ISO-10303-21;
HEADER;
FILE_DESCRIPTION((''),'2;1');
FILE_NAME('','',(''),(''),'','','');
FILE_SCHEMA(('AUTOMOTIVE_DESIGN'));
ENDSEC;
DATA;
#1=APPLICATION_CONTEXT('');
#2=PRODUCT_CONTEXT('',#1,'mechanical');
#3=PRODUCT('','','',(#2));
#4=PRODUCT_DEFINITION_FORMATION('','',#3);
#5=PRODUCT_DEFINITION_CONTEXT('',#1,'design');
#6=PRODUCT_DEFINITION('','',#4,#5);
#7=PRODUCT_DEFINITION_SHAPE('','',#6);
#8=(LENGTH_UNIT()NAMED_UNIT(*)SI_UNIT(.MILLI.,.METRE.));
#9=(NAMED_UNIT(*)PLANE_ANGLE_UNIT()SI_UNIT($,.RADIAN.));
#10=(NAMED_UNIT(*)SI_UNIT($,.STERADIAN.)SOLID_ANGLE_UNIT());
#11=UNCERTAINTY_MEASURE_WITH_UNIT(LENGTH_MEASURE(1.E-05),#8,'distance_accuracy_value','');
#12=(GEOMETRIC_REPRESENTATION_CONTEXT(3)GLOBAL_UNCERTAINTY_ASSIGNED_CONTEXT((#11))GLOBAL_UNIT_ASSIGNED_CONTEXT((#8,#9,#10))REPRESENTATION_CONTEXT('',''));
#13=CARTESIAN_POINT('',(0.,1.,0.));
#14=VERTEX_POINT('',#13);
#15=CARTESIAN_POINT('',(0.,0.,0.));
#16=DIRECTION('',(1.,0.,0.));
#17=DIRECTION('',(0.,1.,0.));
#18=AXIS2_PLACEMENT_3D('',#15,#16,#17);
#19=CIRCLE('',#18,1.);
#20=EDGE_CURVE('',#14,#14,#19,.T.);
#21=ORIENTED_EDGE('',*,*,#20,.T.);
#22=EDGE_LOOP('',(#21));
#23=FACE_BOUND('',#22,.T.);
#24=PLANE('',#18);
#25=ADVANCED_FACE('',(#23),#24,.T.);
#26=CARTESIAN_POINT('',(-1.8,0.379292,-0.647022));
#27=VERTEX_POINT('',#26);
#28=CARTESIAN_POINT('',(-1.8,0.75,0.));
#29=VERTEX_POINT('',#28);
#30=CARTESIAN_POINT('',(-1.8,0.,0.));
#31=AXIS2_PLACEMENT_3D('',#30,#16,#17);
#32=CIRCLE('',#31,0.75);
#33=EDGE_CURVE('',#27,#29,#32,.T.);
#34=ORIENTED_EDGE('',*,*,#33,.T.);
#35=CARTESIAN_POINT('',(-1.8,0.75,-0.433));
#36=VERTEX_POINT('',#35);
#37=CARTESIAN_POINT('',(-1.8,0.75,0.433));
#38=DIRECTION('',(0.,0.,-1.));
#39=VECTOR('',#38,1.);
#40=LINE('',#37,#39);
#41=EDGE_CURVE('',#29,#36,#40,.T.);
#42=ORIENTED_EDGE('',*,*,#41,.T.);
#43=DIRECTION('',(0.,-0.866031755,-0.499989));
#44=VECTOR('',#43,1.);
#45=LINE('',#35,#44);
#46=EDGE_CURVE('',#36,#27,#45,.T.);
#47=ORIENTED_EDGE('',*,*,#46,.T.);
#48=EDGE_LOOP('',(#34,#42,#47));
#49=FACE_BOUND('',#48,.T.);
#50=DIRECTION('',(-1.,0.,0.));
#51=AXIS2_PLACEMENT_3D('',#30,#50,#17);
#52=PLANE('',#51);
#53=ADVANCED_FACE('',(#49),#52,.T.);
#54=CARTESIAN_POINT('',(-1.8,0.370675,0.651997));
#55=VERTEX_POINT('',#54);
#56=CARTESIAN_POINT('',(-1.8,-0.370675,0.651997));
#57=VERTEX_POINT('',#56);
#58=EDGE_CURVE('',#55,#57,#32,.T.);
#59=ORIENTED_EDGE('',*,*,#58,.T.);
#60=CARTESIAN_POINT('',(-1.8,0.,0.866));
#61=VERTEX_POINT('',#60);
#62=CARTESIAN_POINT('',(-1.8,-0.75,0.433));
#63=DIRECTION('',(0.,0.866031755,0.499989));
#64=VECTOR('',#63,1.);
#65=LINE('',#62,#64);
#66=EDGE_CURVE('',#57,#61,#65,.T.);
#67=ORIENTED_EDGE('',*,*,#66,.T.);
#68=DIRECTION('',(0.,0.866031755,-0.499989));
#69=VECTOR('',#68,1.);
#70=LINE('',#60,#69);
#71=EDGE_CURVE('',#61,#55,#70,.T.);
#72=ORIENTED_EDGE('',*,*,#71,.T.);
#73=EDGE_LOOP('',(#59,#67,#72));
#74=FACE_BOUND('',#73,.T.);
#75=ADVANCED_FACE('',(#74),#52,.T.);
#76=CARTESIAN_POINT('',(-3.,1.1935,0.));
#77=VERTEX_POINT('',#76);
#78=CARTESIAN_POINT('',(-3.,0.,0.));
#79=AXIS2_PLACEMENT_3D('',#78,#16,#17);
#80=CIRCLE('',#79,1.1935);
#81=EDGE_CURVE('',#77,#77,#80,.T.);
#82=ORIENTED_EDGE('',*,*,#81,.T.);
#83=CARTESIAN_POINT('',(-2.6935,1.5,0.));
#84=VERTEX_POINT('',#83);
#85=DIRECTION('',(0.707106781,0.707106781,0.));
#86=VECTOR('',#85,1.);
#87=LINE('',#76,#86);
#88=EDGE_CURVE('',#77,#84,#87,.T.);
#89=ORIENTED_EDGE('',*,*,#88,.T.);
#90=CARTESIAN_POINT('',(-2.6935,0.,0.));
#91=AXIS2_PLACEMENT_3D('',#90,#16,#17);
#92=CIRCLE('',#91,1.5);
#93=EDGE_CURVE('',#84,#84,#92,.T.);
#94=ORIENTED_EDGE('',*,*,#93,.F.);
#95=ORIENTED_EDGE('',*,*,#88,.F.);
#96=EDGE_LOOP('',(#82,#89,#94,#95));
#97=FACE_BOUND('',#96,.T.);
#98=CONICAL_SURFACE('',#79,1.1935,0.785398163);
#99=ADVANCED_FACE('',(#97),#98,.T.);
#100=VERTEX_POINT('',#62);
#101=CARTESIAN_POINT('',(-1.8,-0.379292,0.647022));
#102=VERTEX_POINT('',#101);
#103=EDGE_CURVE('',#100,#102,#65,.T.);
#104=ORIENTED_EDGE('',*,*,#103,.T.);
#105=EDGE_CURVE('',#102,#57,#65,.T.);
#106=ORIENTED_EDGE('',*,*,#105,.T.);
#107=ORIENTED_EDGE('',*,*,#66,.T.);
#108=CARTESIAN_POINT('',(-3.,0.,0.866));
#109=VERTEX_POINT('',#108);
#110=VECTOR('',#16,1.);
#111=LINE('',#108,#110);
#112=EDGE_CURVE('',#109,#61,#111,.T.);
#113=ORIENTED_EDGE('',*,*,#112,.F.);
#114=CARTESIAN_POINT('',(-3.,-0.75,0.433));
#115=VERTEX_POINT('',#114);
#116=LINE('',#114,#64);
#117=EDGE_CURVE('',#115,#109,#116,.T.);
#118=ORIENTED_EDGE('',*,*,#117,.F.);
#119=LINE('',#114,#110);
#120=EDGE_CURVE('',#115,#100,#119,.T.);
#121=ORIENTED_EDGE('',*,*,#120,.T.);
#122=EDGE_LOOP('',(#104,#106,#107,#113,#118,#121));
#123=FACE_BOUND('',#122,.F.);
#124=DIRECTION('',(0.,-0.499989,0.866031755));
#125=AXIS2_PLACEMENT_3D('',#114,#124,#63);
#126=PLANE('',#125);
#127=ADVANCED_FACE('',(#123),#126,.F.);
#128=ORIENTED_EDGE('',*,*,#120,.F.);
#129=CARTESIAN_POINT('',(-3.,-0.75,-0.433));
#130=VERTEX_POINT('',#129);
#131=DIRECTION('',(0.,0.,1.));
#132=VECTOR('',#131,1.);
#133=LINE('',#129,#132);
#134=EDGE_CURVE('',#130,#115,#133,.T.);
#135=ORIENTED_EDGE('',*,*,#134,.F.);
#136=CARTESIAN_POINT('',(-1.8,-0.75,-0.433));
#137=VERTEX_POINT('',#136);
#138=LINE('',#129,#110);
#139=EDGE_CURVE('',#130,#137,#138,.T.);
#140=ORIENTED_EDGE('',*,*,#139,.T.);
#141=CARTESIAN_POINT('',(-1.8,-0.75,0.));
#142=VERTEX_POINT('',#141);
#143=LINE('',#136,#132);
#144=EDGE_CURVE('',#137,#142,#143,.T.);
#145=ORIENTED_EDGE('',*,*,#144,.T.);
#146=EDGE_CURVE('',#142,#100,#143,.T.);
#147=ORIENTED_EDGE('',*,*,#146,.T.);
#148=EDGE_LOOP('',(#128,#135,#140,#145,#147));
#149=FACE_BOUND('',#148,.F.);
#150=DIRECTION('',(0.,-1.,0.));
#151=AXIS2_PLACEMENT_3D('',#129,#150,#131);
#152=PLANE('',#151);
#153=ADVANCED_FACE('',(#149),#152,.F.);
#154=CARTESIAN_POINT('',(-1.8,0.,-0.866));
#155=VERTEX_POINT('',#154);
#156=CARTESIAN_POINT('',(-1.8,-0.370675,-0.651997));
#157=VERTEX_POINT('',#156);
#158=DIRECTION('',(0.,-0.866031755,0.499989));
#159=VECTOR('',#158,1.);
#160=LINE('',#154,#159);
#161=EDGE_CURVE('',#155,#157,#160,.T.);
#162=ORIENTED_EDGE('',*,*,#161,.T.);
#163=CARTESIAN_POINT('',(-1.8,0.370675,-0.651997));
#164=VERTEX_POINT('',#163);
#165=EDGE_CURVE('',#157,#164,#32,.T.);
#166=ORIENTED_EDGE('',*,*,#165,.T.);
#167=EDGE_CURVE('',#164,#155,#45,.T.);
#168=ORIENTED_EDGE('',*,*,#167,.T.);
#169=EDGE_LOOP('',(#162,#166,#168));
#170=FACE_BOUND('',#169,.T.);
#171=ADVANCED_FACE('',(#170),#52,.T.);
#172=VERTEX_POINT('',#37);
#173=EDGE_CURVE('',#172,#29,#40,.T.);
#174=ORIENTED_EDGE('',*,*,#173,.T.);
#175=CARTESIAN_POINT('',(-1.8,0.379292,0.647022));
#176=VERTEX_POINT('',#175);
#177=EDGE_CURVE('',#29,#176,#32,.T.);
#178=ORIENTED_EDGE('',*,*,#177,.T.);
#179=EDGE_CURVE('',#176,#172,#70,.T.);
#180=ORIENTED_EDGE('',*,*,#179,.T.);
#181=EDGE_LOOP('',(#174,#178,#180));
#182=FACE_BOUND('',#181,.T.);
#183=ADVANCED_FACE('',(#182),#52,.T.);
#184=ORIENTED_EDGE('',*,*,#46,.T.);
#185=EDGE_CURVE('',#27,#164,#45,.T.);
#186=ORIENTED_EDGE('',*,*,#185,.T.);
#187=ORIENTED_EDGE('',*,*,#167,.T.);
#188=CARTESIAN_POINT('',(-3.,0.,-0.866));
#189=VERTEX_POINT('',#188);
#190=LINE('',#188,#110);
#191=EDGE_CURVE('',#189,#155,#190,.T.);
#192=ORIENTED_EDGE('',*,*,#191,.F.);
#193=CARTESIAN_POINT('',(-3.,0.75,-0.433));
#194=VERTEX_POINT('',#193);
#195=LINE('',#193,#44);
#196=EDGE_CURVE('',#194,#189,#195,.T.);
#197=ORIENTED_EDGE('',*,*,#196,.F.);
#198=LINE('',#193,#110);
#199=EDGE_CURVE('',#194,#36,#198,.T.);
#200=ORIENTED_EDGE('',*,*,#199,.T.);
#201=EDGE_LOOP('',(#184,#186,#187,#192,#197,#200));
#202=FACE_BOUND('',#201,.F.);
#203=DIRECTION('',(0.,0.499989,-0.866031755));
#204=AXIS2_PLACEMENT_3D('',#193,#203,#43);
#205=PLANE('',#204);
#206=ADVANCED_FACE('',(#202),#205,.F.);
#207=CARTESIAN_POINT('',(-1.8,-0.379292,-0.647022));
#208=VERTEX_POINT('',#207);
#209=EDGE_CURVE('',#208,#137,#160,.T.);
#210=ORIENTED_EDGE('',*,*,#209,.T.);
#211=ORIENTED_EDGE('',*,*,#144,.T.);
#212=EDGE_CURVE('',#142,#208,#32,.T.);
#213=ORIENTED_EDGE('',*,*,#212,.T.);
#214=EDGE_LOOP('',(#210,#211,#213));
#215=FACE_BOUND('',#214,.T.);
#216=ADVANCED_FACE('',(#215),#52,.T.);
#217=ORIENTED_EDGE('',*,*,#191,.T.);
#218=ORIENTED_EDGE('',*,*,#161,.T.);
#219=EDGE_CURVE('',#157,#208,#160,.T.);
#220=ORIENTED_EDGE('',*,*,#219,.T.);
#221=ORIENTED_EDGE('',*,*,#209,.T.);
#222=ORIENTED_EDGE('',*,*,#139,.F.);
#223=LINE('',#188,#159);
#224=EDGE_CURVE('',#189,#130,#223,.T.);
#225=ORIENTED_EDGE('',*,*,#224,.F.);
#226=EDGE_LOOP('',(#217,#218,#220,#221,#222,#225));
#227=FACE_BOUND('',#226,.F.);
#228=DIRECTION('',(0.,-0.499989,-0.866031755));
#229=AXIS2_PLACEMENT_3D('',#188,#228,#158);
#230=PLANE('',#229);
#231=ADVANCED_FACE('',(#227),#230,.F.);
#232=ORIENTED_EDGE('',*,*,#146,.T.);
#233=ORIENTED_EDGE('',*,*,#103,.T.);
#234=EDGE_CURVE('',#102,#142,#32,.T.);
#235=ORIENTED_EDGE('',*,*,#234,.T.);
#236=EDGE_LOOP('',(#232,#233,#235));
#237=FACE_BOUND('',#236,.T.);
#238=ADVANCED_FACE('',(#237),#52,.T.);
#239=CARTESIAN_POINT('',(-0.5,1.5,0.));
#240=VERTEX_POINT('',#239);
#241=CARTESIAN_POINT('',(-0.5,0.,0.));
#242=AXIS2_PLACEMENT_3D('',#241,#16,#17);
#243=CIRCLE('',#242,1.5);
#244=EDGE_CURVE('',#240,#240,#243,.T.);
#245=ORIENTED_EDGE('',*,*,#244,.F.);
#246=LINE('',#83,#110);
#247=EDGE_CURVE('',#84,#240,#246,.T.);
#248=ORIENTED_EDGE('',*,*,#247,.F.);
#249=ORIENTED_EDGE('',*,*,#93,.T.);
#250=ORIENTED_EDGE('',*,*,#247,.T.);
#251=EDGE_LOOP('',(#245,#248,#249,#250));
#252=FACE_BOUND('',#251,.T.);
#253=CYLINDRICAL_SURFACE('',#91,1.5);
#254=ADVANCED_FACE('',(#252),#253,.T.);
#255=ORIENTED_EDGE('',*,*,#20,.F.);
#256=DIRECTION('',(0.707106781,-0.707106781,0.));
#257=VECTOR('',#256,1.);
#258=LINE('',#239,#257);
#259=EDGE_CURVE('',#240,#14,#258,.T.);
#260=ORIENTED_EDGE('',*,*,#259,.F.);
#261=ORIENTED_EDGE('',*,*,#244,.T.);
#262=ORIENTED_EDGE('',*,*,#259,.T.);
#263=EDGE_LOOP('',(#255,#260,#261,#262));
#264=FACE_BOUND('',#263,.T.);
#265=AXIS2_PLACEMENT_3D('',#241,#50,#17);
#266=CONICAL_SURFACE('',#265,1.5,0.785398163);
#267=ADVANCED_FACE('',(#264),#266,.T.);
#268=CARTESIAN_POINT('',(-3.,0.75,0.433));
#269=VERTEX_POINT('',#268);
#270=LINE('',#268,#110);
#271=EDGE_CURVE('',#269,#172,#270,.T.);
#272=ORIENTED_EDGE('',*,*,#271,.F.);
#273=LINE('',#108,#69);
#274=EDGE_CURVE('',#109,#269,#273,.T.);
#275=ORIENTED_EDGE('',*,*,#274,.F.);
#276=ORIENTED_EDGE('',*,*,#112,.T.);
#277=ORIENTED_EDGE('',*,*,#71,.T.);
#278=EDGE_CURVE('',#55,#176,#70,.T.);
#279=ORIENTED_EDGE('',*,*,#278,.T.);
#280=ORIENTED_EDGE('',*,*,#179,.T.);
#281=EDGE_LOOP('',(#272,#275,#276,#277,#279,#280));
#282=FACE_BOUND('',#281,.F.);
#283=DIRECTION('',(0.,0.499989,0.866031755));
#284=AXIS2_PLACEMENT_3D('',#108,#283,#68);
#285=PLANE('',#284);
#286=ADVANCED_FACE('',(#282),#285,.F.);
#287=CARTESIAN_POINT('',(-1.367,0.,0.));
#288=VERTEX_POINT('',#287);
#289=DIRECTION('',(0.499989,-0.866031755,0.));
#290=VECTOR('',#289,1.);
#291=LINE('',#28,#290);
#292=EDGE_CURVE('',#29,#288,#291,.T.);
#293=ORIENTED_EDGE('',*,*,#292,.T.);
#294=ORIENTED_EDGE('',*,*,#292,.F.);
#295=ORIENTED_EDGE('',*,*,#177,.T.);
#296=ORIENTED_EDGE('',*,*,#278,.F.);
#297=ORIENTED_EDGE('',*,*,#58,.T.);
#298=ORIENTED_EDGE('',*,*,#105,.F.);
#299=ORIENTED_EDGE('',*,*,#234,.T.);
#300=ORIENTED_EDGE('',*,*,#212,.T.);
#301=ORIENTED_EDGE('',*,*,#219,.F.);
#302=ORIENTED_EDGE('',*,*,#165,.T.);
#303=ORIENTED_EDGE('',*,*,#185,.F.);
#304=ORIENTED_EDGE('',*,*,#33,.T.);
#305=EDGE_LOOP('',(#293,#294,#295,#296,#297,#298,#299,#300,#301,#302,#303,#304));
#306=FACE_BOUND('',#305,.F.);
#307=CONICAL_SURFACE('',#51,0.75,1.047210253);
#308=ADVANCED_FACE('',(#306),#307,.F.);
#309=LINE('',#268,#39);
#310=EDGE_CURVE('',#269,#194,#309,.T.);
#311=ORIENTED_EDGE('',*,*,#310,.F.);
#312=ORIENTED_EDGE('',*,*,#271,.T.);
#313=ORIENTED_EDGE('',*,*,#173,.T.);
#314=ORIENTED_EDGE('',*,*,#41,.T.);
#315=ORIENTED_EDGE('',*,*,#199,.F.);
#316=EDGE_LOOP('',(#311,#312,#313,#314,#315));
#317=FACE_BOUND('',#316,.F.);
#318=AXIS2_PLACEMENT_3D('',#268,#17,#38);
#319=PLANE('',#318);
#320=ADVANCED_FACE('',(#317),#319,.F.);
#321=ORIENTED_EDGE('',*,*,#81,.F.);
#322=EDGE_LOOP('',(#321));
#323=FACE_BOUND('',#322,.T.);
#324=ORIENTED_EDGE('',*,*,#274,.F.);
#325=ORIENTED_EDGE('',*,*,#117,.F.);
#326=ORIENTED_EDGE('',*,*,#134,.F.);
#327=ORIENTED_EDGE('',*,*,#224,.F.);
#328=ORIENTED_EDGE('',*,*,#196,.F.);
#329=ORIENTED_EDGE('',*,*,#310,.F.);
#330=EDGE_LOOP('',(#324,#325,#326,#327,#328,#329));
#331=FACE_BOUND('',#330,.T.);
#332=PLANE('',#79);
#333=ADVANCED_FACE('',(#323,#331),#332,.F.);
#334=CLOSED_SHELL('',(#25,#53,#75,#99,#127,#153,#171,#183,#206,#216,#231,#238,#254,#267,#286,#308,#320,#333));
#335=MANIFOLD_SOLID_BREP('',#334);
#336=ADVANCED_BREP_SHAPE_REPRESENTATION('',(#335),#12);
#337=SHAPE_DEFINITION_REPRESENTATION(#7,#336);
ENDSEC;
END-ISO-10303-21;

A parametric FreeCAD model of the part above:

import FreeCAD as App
import Part
import Sketcher

V = App.Vector
Q = App.Units.Quantity

doc = App.newDocument("Part")
params = doc.addObject("Spreadsheet::Sheet", "Params")
for row, (alias, value) in enumerate([
    ("sketch1_width", "3 mm"),
    ("sketch1_height", "1 mm"),
    ("revolution_angle", "360 deg"),
    ("pocket1_length", "1.2 mm"),
    ("sketch3_height", "0.75 mm"),
    ("groove_angle", "360 deg"),
], start=1):
    params.set(f"A{row}", alias)
    params.set(f"B{row}", "=" + value)
    params.setAlias(f"B{row}", alias)

body = doc.addObject("PartDesign::Body", "Body")

# Sketch on XY plane
sketch1 = body.newObject("Sketcher::SketchObject", "Sketch")
sketch1.AttachmentSupport = (doc.getObject("XY_Plane"), [""])
sketch1.MapMode = "FlatFace"
sketch1.addGeometry([
    Part.LineSegment(V(-3, 0, 0), V(0, 0, 0)),  # 0
    Part.LineSegment(V(0, 0, 0), V(0, 1, 0)),  # 1
    Part.LineSegment(V(0, 1, 0), V(-0.5, 1.5, 0)),  # 2
    Part.LineSegment(V(-0.5, 1.5, 0), V(-2.69, 1.5, 0)),  # 3
    Part.LineSegment(V(-2.69, 1.5, 0), V(-3, 1.19, 0)),  # 4
    Part.LineSegment(V(-3, 1.19, 0), V(-3, 0, 0)),  # 5
], False)
sketch1.addConstraint([
    Sketcher.Constraint("Coincident", 0, 2, 1, 1),
    Sketcher.Constraint("Coincident", 1, 2, 2, 1),
    Sketcher.Constraint("Coincident", 2, 2, 3, 1),
    Sketcher.Constraint("Coincident", 3, 2, 4, 1),
    Sketcher.Constraint("Coincident", 4, 2, 5, 1),
    Sketcher.Constraint("Coincident", 5, 2, 0, 1),
    Sketcher.Constraint("Horizontal", 0),
    Sketcher.Constraint("Vertical", 1),
    Sketcher.Constraint("Horizontal", 3),
    Sketcher.Constraint("Vertical", 5),
    Sketcher.Constraint("Coincident", 0, 2, -1, 1),
    Sketcher.Constraint("Perpendicular", 2, 4),
    Sketcher.Constraint("DistanceX", 0, 1, 0, 2, Q("3 mm")),
    Sketcher.Constraint("DistanceY", 1, 1, 1, 2, Q("1 mm")),
    Sketcher.Constraint("Angle", 2, Q("135 deg")),
    Sketcher.Constraint("DistanceX", 2, 2, -1, 1, Q("0.5 mm")),
    Sketcher.Constraint("DistanceX", 3, 2, 3, 1, Q("2.1935 mm")),
])
sketch1.setExpression("Constraints[12]", "Params.sketch1_width")
sketch1.setExpression("Constraints[13]", "Params.sketch1_height")
revolution = body.newObject("PartDesign::Revolution", "Revolution")
revolution.Profile = sketch1
revolution.ReferenceAxis = (sketch1, ["H_Axis"])
revolution.setExpression("Angle", "Params.revolution_angle")

# Sketch on YZ plane
sketch2 = body.newObject("Sketcher::SketchObject", "Sketch001")
sketch2.AttachmentSupport = (doc.getObject("YZ_Plane"), [""])
sketch2.MapMode = "FlatFace"
sketch2.AttachmentOffset = App.Placement(V(0, 0, -3), App.Rotation())
sketch2.addGeometry([
    Part.LineSegment(V(-0.8, -0.4, 0), V(-0.8, 0.4, 0)),  # 0
    Part.LineSegment(V(-0.8, 0.4, 0), V(0, 0.9, 0)),  # 1
    Part.LineSegment(V(0, 0.9, 0), V(0.8, 0.4, 0)),  # 2
    Part.LineSegment(V(0.8, 0.4, 0), V(0.8, -0.4, 0)),  # 3
    Part.LineSegment(V(0.8, -0.4, 0), V(0, -0.9, 0)),  # 4
    Part.LineSegment(V(0, -0.9, 0), V(-0.8, -0.4, 0)),  # 5
], False)
sketch2.addConstraint([
    Sketcher.Constraint("Coincident", 0, 2, 1, 1),
    Sketcher.Constraint("Coincident", 1, 2, 2, 1),
    Sketcher.Constraint("Coincident", 2, 2, 3, 1),
    Sketcher.Constraint("Coincident", 3, 2, 4, 1),
    Sketcher.Constraint("Coincident", 4, 2, 5, 1),
    Sketcher.Constraint("Coincident", 5, 2, 0, 1),
    Sketcher.Constraint("Vertical", 0),
    Sketcher.Constraint("Vertical", 3),
    Sketcher.Constraint("Symmetric", 0, 2, 3, 2, -1, 1),
    Sketcher.Constraint("Symmetric", 1, 2, 4, 2, -1, 1),
    Sketcher.Constraint("PointOnObject", 1, 2, -2),
    Sketcher.Constraint("Parallel", 2, 5),
    Sketcher.Constraint("Horizontal", 0, 2, 2, 2),
    Sketcher.Constraint("Angle", 1, Q("29.9993 deg")),
    Sketcher.Constraint("DistanceX", 0, 2, 2, 2, Q("1.5 mm")),
    Sketcher.Constraint("DistanceY", 0, 1, 0, 2, Q("0.866 mm")),
])
pocket1 = body.newObject("PartDesign::Pocket", "Pocket")
pocket1.Profile = sketch2
pocket1.setExpression("Length", "Params.pocket1_length")
pocket1.Reversed = True

# Sketch on XY plane
sketch3 = body.newObject("Sketcher::SketchObject", "Sketch002")
sketch3.AttachmentSupport = (doc.getObject("XY_Plane"), [""])
sketch3.MapMode = "FlatFace"
sketch3.addGeometry([
    Part.LineSegment(V(-1.8, 0, 0), V(-1.37, 0, 0)),
    Part.LineSegment(V(-1.37, 0, 0), V(-1.8, 0.75, 0)),
    Part.LineSegment(V(-1.8, 0.75, 0), V(-1.8, 0, 0)),
], False)
sketch3.addConstraint([
    Sketcher.Constraint("Coincident", 0, 2, 1, 1),
    Sketcher.Constraint("Coincident", 1, 2, 2, 1),
    Sketcher.Constraint("Coincident", 2, 2, 0, 1),
    Sketcher.Constraint("Horizontal", 0),
    Sketcher.Constraint("Vertical", 2),
    Sketcher.Constraint("PointOnObject", 0, 2, -1),
    Sketcher.Constraint("Angle", 1, Q("119.9993 deg")),
    Sketcher.Constraint("DistanceY", 2, 2, 2, 1, Q("0.75 mm")),
    Sketcher.Constraint("DistanceX", 1, 2, -1, 1, Q("1.8 mm")),
])
sketch3.setExpression("Constraints[7]", "Params.sketch3_height")
groove = body.newObject("PartDesign::Groove", "Groove")
groove.Profile = sketch3
groove.ReferenceAxis = (sketch3, ["H_Axis"])
groove.setExpression("Angle", "Params.groove_angle")

doc.recompute()
